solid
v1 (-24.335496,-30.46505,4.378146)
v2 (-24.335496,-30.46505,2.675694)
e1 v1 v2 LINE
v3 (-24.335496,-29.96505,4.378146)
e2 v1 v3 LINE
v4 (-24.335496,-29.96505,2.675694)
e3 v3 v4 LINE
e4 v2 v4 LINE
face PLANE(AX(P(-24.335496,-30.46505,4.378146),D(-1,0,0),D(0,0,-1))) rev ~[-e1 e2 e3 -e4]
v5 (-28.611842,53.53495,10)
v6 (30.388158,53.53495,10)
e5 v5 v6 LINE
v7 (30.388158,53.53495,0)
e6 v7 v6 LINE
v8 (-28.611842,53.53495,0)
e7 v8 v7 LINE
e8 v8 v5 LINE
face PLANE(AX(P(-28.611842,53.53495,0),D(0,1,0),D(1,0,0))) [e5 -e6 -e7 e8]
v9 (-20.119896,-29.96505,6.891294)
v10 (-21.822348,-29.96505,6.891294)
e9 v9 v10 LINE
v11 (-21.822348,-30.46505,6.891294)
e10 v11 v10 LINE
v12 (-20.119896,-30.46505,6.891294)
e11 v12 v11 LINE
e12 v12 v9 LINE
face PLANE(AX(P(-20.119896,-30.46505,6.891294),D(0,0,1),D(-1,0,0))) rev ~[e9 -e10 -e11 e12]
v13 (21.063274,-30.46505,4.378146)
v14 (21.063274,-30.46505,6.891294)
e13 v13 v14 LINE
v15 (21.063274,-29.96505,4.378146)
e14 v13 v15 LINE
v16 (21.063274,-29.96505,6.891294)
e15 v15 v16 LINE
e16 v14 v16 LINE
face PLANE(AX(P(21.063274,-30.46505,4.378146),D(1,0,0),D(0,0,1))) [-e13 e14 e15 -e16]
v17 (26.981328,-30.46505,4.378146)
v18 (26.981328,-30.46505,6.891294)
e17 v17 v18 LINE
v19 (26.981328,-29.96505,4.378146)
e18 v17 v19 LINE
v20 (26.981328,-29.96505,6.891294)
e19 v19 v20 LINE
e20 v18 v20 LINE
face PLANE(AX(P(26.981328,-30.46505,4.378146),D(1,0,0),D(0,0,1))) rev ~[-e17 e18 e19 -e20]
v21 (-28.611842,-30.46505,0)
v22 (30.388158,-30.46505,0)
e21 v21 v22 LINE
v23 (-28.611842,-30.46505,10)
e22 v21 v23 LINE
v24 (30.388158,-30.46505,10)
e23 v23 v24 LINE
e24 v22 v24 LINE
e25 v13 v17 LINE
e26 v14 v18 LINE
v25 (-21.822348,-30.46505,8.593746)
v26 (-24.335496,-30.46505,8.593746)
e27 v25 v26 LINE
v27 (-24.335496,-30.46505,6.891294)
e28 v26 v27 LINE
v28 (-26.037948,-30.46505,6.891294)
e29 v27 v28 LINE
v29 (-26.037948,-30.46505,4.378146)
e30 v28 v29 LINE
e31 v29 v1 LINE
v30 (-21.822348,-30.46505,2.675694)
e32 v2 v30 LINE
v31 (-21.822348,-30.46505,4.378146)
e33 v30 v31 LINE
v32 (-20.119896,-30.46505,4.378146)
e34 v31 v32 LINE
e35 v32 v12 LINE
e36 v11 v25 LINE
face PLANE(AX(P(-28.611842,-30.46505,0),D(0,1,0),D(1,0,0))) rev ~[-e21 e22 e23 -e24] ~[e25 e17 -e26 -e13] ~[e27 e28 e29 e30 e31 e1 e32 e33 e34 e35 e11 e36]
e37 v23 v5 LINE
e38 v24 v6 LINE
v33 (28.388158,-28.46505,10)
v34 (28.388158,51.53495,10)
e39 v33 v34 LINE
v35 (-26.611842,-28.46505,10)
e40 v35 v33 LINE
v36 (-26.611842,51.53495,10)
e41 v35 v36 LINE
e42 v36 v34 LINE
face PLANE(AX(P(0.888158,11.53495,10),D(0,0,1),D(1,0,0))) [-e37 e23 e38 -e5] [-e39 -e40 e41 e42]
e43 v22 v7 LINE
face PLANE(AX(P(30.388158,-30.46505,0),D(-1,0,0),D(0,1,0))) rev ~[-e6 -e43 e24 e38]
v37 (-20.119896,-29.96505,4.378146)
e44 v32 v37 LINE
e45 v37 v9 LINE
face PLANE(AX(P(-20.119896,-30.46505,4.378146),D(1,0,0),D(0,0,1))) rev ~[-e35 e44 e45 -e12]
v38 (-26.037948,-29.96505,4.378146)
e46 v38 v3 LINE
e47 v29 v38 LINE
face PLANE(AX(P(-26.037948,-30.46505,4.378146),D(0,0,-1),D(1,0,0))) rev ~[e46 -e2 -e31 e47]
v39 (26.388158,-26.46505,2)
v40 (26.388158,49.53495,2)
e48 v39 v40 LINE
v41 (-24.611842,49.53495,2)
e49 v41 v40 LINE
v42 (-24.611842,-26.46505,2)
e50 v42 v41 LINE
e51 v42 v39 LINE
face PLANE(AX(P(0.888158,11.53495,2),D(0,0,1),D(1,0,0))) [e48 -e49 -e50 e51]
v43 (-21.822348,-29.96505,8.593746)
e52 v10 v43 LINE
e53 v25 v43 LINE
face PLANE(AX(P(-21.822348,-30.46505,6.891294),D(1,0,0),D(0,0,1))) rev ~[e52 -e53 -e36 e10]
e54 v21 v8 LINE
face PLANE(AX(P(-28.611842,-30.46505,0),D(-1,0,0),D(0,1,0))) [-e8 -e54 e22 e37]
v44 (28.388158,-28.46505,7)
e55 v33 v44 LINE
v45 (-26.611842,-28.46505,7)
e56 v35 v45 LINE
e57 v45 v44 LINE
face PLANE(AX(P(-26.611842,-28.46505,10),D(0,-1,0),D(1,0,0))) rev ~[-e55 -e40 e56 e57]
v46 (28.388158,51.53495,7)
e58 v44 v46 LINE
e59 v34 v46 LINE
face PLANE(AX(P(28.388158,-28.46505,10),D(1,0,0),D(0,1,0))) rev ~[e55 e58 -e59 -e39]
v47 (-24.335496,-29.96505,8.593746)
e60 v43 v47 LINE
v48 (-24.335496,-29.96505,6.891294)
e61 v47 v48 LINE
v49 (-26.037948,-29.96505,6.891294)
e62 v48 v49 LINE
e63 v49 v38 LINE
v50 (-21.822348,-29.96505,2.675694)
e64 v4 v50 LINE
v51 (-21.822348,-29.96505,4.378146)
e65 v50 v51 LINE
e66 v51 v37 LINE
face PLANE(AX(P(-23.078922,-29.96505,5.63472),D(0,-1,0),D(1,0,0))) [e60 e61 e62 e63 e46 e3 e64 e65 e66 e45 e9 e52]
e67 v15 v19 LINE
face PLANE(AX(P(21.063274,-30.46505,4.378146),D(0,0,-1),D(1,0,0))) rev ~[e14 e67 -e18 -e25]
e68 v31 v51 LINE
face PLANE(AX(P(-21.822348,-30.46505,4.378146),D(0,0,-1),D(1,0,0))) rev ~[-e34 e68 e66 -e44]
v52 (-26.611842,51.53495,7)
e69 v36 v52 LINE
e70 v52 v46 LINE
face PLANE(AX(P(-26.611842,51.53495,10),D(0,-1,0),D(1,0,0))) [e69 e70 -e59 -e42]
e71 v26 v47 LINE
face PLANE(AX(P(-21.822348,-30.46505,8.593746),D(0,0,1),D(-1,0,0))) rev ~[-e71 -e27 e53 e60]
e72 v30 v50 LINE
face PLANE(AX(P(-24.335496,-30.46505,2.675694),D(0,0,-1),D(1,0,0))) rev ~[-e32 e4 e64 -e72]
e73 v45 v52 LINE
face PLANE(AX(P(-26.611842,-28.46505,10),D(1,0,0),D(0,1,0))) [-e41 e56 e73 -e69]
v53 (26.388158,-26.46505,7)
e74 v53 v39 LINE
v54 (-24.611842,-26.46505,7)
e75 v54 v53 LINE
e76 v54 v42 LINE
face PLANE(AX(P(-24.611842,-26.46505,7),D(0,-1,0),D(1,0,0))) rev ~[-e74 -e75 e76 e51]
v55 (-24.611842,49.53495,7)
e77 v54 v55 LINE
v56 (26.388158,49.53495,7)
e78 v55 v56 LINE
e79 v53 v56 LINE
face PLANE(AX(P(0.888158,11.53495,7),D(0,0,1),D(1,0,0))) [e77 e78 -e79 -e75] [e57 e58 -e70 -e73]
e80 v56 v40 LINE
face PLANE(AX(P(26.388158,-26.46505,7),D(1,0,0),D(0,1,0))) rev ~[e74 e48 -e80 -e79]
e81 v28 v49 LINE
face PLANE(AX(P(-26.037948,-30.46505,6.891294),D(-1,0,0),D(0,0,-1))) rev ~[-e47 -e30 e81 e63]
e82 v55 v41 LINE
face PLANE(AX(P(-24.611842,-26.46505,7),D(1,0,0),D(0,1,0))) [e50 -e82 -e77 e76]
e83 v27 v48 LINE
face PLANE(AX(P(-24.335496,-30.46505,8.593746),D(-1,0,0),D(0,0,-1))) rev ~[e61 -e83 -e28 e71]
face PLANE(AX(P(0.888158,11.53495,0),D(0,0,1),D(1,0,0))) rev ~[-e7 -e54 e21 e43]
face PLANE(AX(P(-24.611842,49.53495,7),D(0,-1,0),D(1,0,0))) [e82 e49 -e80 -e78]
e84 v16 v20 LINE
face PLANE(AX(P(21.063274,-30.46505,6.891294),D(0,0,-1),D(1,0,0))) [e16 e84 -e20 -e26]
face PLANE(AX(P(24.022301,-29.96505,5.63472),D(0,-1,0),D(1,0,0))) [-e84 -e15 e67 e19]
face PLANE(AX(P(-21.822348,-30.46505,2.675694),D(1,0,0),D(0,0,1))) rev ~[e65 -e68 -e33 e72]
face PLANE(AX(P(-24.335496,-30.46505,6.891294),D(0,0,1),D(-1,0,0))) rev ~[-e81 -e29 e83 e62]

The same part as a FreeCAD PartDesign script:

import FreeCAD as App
import Part
import Sketcher

V = App.Vector


def add_polygon(sketch, points):
    """Adds a closed chain of lines whose ends are joined by coincident constraints."""
    first, n = sketch.GeometryCount, len(points)
    for a, b in zip(points, points[1:] + points[:1]):
        sketch.addGeometry(Part.LineSegment(App.Vector(*a, 0), App.Vector(*b, 0)), False)
    for i in range(n):
        sketch.addConstraint(Sketcher.Constraint("Coincident", first + i, 2, first + (i + 1) % n, 1))

doc = App.newDocument("Part")
body = doc.addObject("PartDesign::Body", "Body")

# Sketch on XY plane
sketch1 = body.newObject("Sketcher::SketchObject", "Sketch")
sketch1.AttachmentSupport = (doc.getObject("XY_Plane"), [""])
sketch1.MapMode = "FlatFace"
add_polygon(sketch1, [(-28.611842, 53.53495), (-28.611842, -30.46505), (30.388158, -30.46505), (30.388158, 53.53495)])  # lines 0-3
sketch1.addConstraint(Sketcher.Constraint("Vertical", 0))
sketch1.addConstraint(Sketcher.Constraint("Horizontal", 1))
sketch1.addConstraint(Sketcher.Constraint("Vertical", 2))
sketch1.addConstraint(Sketcher.Constraint("Horizontal", 3))
sketch1.addConstraint(Sketcher.Constraint("DistanceX", 1, 1, 1, 2, 59.0))
sketch1.addConstraint(Sketcher.Constraint("DistanceY", 0, 2, 0, 1, 84.0))
sketch1.addConstraint(Sketcher.Constraint("DistanceX", 0, 2, -1, 1, 28.611842))
sketch1.addConstraint(Sketcher.Constraint("DistanceY", 0, 2, -1, 1, 30.46505))
pad1 = body.newObject("PartDesign::Pad", "Pad")
pad1.Profile = sketch1
pad1.Length = 10

# Sketch on XY plane
sketch2 = body.newObject("Sketcher::SketchObject", "Sketch001")
sketch2.AttachmentSupport = (doc.getObject("XY_Plane"), [""])
sketch2.MapMode = "FlatFace"
sketch2.AttachmentOffset = App.Placement(V(0, 0, 10), App.Rotation())
add_polygon(sketch2, [(-26.611842, 51.53495), (-26.611842, -28.46505), (28.388158, -28.46505), (28.388158, 51.53495)])  # lines 0-3
sketch2.addConstraint(Sketcher.Constraint("Vertical", 0))
sketch2.addConstraint(Sketcher.Constraint("Horizontal", 1))
sketch2.addConstraint(Sketcher.Constraint("Vertical", 2))
sketch2.addConstraint(Sketcher.Constraint("Horizontal", 3))
sketch2.addConstraint(Sketcher.Constraint("DistanceX", 1, 1, 1, 2, 55.0))
sketch2.addConstraint(Sketcher.Constraint("DistanceY", 0, 2, 0, 1, 80.0))
sketch2.addConstraint(Sketcher.Constraint("DistanceX", 0, 2, -1, 1, 26.611842))
sketch2.addConstraint(Sketcher.Constraint("DistanceY", 0, 2, -1, 1, 28.46505))
pocket1 = body.newObject("PartDesign::Pocket", "Pocket")
pocket1.Profile = sketch2
pocket1.Length = 3

# Sketch on XY plane
sketch3 = body.newObject("Sketcher::SketchObject", "Sketch002")
sketch3.AttachmentSupport = (doc.getObject("XY_Plane"), [""])
sketch3.MapMode = "FlatFace"
sketch3.AttachmentOffset = App.Placement(V(0, 0, 7), App.Rotation())
add_polygon(sketch3, [(-24.611842, 49.53495), (-24.611842, -26.46505), (26.388158, -26.46505), (26.388158, 49.53495)])  # lines 0-3
sketch3.addConstraint(Sketcher.Constraint("Vertical", 0))
sketch3.addConstraint(Sketcher.Constraint("Horizontal", 1))
sketch3.addConstraint(Sketcher.Constraint("Vertical", 2))
sketch3.addConstraint(Sketcher.Constraint("Horizontal", 3))
sketch3.addConstraint(Sketcher.Constraint("DistanceX", 1, 1, 1, 2, 51.0))
sketch3.addConstraint(Sketcher.Constraint("DistanceY", 0, 2, 0, 1, 76.0))
sketch3.addConstraint(Sketcher.Constraint("DistanceX", 0, 2, -1, 1, 24.611842))
sketch3.addConstraint(Sketcher.Constraint("DistanceY", 0, 2, -1, 1, 26.46505))
pocket2 = body.newObject("PartDesign::Pocket", "Pocket001")
pocket2.Profile = sketch3
pocket2.Length = 5

# Sketch on XZ plane
sketch4 = body.newObject("Sketcher::SketchObject", "Sketch003")
sketch4.AttachmentSupport = (doc.getObject("XZ_Plane"), [""])
sketch4.MapMode = "FlatFace"
sketch4.AttachmentOffset = App.Placement(V(0, 0, 30.46505), App.Rotation())
add_polygon(sketch4, [(-20.119896, 4.378146), (-20.119896, 6.891294), (-21.822348, 6.891294), (-21.822348, 8.593746), (-24.335496, 8.593746), (-24.335496, 6.891294), (-26.037948, 6.891294), (-26.037948, 4.378146), (-24.335496, 4.378146), (-24.335496, 2.675694), (-21.822348, 2.675694), (-21.822348, 4.378146)])  # lines 0-11
add_polygon(sketch4, [(21.063274, 6.891294), (21.063274, 4.378146), (26.981328, 4.378146), (26.981328, 6.891294)])  # lines 12-15
sketch4.addConstraint(Sketcher.Constraint("Vertical", 0))
sketch4.addConstraint(Sketcher.Constraint("Horizontal", 1))
sketch4.addConstraint(Sketcher.Constraint("Vertical", 2))
sketch4.addConstraint(Sketcher.Constraint("Horizontal", 3))
sketch4.addConstraint(Sketcher.Constraint("Vertical", 4))
sketch4.addConstraint(Sketcher.Constraint("Horizontal", 5))
sketch4.addConstraint(Sketcher.Constraint("Vertical", 6))
sketch4.addConstraint(Sketcher.Constraint("Horizontal", 7))
sketch4.addConstraint(Sketcher.Constraint("Vertical", 8))
sketch4.addConstraint(Sketcher.Constraint("Horizontal", 9))
sketch4.addConstraint(Sketcher.Constraint("Vertical", 10))
sketch4.addConstraint(Sketcher.Constraint("Horizontal", 11))
sketch4.addConstraint(Sketcher.Constraint("Vertical", 12))
sketch4.addConstraint(Sketcher.Constraint("Horizontal", 13))
sketch4.addConstraint(Sketcher.Constraint("Vertical", 14))
sketch4.addConstraint(Sketcher.Constraint("Horizontal", 15))
sketch4.addConstraint(Sketcher.Constraint("Horizontal", 1, 2, 4, 2))
sketch4.addConstraint(Sketcher.Constraint("Horizontal", 7, 2, 10, 2))
sketch4.addConstraint(Sketcher.Constraint("Horizontal", 11, 2, 12, 2))
sketch4.addConstraint(Sketcher.Constraint("Horizontal", 5, 2, 14, 2))
sketch4.addConstraint(Sketcher.Constraint("Vertical", 4, 2, 7, 2))
sketch4.addConstraint(Sketcher.Constraint("Vertical", 2, 2, 9, 2))
sketch4.addConstraint(Sketcher.Constraint("Equal", 1, 5))
sketch4.addConstraint(Sketcher.Constraint("Equal", 9, 0))
sketch4.addConstraint(Sketcher.Constraint("Equal", 11, 2))
sketch4.addConstraint(Sketcher.Constraint("Equal", 4, 8))
sketch4.addConstraint(Sketcher.Constraint("DistanceY", 0, 1, 0, 2, 2.513148))
sketch4.addConstraint(Sketcher.Constraint("DistanceY", 2, 1, 2, 2, 1.702452))
sketch4.addConstraint(Sketcher.Constraint("DistanceX", 13, 1, 13, 2, 5.918054))
sketch4.addConstraint(Sketcher.Constraint("DistanceX", 1, 2, -1, 1, 21.822348))
sketch4.addConstraint(Sketcher.Constraint("DistanceX", -1, 1, 13, 2, 26.981328))
sketch4.addConstraint(Sketcher.Constraint("DistanceY", -1, 1, 0, 2, 6.891294))
pocket3 = body.newObject("PartDesign::Pocket", "Pocket002")
pocket3.Profile = sketch4
pocket3.Length = 0.5

doc.recompute()
